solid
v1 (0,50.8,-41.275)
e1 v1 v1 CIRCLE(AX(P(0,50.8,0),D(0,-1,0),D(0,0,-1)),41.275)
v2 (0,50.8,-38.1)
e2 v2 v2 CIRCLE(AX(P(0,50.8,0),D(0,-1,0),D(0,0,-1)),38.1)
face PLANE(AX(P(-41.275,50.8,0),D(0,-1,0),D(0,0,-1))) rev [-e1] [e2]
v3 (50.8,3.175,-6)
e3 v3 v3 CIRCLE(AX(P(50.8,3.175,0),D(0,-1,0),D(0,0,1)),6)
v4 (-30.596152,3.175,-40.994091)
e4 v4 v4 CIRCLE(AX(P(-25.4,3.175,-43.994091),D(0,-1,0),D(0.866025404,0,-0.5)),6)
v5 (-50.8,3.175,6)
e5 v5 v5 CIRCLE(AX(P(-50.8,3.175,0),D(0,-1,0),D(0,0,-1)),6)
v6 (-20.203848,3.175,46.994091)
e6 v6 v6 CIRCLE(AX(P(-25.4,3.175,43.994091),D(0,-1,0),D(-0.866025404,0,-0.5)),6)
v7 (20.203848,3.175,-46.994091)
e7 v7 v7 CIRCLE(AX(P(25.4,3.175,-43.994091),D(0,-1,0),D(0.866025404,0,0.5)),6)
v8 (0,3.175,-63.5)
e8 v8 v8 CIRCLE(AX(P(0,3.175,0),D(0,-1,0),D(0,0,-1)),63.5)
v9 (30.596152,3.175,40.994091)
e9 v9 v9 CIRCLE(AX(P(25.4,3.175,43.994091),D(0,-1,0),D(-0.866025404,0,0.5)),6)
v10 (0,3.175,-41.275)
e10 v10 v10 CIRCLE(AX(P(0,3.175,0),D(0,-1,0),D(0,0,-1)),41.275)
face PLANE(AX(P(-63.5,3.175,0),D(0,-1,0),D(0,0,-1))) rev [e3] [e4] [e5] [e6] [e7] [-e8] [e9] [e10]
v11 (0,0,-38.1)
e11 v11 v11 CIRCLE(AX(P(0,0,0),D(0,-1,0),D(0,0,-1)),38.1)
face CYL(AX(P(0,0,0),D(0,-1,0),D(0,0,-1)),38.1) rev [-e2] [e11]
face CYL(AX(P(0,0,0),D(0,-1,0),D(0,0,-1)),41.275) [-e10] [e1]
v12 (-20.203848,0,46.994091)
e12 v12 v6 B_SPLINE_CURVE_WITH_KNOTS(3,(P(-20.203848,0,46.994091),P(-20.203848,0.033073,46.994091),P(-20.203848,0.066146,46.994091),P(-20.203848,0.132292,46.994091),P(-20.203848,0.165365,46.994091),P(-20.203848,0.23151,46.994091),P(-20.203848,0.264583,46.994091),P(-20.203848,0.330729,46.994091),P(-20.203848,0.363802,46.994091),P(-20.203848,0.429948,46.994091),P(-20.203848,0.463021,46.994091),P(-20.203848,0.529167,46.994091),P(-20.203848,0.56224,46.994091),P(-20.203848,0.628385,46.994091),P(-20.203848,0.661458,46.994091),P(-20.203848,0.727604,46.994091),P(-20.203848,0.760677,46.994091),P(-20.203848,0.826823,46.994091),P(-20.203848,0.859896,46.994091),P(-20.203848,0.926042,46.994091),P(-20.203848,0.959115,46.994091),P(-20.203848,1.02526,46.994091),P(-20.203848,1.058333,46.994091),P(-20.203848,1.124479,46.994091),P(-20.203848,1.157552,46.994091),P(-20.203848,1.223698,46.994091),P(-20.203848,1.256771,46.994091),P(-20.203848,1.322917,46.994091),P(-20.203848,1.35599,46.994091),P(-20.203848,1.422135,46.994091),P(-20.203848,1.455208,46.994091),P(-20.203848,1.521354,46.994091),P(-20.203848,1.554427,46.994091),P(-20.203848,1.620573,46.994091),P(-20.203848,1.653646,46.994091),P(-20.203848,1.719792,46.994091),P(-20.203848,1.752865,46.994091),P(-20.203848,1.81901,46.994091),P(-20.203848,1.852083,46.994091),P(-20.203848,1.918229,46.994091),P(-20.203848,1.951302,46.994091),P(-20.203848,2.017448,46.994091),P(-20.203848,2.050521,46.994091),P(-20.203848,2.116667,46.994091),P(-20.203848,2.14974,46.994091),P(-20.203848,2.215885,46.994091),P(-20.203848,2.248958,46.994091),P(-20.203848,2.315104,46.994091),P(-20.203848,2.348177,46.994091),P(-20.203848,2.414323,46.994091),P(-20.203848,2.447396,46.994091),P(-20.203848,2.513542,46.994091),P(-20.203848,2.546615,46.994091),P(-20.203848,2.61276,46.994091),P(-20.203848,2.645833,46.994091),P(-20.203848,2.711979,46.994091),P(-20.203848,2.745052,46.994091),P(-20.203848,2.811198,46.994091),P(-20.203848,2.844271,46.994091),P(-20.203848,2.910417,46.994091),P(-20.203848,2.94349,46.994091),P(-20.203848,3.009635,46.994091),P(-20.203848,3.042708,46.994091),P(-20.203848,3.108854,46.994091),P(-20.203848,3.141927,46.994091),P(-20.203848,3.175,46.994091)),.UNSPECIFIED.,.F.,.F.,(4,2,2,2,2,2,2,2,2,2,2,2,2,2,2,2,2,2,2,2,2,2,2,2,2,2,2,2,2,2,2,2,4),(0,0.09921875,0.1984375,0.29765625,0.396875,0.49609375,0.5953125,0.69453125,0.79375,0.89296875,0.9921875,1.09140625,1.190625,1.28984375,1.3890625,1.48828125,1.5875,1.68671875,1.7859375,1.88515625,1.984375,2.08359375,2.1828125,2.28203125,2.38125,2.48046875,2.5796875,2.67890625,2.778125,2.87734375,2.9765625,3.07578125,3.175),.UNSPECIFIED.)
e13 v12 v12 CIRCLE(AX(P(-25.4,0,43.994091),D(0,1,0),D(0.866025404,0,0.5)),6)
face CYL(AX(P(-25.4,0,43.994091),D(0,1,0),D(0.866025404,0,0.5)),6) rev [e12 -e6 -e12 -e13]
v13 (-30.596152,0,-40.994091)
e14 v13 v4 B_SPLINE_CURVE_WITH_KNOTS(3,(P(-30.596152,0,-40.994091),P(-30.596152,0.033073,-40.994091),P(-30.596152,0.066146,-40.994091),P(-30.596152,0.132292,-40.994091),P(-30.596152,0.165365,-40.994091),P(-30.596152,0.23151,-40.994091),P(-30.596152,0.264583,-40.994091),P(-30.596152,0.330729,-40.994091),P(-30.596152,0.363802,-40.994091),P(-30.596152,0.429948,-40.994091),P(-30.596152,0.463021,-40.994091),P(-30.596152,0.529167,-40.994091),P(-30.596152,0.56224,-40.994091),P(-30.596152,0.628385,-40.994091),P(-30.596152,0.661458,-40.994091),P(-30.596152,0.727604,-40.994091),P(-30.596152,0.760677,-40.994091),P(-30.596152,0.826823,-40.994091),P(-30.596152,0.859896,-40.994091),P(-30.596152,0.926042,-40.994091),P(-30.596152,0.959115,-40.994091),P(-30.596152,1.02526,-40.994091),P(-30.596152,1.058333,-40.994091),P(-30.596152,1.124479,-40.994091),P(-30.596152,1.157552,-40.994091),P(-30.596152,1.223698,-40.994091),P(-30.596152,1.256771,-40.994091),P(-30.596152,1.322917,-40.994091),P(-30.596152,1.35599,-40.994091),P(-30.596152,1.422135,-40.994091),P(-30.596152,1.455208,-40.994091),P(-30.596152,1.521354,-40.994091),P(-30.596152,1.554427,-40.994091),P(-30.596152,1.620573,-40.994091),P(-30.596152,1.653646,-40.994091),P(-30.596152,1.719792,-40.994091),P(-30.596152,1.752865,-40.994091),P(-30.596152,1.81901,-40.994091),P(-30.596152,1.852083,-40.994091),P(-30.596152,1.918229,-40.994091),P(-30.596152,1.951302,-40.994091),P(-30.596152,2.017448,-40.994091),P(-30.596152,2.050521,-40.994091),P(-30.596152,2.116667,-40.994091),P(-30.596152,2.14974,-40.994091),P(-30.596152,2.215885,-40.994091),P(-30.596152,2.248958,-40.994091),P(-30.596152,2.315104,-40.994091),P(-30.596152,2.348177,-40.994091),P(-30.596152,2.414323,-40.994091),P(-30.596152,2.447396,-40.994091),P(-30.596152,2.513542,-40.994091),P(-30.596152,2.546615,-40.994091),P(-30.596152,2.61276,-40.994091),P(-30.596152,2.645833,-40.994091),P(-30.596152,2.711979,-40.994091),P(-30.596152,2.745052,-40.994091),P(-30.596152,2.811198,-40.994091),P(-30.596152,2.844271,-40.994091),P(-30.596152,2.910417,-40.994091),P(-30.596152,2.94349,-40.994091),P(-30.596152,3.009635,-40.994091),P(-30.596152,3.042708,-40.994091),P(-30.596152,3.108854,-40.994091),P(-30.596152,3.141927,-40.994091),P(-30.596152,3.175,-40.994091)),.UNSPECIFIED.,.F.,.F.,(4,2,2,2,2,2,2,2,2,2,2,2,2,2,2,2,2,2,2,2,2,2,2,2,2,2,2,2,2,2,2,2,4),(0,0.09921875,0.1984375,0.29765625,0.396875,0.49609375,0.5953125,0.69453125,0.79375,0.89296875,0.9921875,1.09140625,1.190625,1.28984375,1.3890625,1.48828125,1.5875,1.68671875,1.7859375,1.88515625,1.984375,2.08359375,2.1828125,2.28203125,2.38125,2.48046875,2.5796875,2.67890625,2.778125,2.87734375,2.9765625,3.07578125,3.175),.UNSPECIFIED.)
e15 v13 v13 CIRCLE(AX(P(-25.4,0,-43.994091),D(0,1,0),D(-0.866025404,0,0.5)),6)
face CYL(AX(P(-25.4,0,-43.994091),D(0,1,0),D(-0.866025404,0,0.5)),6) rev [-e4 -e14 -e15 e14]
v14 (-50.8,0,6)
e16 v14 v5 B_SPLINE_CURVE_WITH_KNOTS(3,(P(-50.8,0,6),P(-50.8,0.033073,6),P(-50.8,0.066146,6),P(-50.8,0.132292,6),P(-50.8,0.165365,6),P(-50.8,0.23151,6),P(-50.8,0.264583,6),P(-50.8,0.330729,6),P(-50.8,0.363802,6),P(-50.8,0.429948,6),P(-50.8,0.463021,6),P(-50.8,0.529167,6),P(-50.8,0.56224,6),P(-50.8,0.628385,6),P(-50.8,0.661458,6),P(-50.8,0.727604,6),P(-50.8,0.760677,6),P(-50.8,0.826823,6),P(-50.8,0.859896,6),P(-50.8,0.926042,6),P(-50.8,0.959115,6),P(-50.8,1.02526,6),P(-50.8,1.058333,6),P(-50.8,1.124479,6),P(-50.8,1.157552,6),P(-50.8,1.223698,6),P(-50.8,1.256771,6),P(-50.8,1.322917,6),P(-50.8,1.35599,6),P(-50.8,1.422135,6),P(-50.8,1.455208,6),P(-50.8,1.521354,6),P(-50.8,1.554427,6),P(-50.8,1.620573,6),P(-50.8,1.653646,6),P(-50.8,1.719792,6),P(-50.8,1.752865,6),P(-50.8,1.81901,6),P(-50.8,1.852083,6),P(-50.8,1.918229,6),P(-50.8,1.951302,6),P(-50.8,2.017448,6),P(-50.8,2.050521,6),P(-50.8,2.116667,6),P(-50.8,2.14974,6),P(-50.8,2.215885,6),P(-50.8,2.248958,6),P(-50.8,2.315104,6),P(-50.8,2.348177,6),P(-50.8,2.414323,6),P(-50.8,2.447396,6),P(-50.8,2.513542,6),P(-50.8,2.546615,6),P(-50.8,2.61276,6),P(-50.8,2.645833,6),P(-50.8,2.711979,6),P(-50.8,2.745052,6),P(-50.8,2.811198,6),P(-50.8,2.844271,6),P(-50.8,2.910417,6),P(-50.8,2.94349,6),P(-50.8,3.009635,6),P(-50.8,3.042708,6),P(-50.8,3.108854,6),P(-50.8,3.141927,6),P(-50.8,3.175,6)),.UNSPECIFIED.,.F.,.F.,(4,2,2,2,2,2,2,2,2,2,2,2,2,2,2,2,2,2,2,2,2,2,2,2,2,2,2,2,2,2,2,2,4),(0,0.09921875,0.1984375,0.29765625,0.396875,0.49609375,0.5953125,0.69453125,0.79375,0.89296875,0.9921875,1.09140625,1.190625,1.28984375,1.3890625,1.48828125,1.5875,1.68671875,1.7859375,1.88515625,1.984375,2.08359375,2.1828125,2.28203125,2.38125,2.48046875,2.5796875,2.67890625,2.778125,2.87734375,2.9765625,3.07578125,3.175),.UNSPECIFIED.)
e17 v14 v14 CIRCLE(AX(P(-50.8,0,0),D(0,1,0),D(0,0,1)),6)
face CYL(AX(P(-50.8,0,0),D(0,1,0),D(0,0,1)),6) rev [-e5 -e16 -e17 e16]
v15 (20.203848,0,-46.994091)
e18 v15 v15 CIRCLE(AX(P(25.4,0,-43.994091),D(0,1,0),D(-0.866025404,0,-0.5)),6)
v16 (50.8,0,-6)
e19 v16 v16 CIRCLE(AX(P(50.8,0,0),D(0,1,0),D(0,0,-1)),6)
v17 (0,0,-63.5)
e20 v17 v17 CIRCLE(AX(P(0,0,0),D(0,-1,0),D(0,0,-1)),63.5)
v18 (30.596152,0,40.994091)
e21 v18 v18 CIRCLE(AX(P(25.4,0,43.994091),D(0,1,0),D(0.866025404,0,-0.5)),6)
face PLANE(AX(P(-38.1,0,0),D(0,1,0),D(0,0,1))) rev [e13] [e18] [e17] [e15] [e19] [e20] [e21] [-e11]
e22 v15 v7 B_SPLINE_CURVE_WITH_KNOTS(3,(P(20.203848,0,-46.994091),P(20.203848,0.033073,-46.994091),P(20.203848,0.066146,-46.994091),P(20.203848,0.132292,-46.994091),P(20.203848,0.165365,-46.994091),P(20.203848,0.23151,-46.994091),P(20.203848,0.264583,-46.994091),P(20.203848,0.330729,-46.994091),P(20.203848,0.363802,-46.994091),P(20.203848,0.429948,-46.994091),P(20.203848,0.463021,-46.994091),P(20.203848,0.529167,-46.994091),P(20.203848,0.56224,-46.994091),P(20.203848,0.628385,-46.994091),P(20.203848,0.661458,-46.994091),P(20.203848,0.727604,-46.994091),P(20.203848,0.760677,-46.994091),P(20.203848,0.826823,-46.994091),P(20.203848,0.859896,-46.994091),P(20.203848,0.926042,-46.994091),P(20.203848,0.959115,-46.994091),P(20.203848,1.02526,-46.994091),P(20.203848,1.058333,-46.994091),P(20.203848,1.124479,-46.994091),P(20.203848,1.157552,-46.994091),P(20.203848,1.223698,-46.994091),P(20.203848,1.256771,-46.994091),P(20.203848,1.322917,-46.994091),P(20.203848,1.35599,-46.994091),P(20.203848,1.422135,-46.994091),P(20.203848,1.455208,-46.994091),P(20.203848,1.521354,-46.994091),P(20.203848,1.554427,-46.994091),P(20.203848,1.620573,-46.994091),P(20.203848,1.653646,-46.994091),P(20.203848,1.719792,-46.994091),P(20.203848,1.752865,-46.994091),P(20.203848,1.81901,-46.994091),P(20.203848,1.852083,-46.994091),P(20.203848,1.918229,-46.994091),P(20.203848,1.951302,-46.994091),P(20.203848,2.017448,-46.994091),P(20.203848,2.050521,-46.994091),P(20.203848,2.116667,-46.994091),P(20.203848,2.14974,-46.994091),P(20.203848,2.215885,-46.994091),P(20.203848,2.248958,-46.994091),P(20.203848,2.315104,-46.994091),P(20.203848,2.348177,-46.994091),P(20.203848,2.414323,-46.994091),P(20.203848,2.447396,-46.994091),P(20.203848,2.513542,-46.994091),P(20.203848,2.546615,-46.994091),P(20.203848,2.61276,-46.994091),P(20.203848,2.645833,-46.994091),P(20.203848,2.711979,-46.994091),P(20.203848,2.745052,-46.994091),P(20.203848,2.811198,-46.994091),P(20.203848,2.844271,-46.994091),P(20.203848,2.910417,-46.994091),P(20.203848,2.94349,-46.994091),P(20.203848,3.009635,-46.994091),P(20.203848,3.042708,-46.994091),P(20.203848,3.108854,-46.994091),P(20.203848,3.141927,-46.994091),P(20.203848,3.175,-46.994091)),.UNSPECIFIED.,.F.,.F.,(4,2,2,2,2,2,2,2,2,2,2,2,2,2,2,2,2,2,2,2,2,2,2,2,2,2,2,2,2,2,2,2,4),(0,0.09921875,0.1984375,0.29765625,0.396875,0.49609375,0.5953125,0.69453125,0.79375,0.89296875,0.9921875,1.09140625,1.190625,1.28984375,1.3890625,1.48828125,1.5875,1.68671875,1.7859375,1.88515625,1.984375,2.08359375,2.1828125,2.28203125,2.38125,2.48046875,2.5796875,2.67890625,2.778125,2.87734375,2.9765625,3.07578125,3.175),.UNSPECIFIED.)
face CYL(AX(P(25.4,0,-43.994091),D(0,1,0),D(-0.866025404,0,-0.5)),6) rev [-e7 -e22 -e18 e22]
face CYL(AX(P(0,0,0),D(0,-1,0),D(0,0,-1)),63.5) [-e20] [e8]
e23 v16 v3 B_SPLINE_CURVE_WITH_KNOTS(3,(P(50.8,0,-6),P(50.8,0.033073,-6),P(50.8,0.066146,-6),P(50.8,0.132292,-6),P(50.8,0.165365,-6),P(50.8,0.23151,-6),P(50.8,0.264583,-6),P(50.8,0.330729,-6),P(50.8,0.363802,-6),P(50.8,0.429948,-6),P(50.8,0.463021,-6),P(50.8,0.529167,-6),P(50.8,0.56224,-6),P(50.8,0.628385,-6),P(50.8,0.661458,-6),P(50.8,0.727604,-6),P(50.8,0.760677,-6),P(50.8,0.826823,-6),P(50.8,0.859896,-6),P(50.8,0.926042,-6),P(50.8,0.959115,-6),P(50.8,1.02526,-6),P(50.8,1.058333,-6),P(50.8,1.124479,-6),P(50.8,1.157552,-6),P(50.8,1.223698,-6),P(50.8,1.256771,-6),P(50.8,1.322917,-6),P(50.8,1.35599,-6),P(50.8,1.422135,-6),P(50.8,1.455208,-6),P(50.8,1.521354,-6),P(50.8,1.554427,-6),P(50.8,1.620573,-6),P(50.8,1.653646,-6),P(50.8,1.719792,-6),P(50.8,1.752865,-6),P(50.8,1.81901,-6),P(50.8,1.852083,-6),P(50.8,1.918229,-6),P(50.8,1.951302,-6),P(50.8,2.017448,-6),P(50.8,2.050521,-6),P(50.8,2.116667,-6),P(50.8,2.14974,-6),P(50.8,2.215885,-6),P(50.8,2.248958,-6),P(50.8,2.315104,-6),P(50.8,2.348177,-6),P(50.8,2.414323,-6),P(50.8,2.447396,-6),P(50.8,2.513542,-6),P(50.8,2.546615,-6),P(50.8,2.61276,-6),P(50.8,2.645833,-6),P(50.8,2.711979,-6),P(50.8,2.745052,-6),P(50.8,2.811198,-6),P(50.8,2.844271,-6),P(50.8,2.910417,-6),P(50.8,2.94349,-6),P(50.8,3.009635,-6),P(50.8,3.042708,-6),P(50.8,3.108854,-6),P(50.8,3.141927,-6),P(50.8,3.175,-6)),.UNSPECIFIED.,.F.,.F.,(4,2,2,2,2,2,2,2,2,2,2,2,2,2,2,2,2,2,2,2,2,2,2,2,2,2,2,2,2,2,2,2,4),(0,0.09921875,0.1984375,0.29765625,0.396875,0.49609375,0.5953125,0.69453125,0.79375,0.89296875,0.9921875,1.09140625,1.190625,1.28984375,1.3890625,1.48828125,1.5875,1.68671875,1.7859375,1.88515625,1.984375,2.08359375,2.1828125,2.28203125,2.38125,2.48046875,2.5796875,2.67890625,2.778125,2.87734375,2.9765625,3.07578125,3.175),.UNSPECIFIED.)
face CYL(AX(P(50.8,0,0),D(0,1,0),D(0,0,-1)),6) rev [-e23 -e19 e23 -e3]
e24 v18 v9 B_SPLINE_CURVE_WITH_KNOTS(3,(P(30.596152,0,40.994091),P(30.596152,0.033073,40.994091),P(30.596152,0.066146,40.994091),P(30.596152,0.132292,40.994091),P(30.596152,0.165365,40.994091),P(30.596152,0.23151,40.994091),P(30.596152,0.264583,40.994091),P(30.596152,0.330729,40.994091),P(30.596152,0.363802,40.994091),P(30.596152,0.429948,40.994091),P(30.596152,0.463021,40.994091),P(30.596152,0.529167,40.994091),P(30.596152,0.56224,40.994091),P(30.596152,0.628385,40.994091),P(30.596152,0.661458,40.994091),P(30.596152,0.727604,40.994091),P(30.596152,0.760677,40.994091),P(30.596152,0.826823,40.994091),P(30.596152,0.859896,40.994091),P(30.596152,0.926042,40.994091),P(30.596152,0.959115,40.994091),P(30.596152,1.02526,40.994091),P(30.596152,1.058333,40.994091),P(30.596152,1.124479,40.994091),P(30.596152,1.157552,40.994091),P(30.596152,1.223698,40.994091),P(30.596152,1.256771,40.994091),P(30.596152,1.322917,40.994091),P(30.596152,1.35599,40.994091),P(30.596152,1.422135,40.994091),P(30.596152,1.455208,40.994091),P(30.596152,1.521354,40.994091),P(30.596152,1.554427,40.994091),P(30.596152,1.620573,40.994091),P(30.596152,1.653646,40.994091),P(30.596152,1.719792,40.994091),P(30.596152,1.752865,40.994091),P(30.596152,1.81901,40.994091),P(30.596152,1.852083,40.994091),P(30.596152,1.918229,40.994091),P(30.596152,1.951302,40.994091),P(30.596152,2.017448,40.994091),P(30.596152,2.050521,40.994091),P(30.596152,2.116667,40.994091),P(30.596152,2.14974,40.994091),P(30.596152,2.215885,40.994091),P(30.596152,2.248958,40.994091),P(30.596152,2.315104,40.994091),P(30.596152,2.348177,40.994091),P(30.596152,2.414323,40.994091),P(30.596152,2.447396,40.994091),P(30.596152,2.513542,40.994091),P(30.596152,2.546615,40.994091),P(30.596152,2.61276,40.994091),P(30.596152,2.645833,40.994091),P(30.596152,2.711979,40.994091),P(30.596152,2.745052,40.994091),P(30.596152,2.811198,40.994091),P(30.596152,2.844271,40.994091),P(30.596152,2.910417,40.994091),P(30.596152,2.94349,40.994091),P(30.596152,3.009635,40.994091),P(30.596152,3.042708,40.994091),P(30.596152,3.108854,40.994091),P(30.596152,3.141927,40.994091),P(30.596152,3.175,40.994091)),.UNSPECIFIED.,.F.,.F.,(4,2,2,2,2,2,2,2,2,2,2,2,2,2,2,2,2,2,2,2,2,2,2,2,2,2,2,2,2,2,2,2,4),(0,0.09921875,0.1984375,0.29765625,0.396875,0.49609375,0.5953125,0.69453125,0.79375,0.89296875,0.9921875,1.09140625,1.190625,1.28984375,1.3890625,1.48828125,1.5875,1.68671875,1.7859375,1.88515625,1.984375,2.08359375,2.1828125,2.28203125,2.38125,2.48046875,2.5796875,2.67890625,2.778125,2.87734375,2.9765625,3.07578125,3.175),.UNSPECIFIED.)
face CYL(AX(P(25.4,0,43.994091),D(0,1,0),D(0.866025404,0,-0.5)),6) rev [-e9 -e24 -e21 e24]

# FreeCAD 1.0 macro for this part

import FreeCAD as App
import Part
import Sketcher

V = App.Vector
Q = App.Units.Quantity


def add_polygon(sketch, points):
    """Adds a closed chain of lines whose ends are joined by coincident constraints."""
    first, n = sketch.GeometryCount, len(points)
    for a, b in zip(points, points[1:] + points[:1]):
        sketch.addGeometry(Part.LineSegment(App.Vector(*a, 0), App.Vector(*b, 0)), False)
    for i in range(n):
        sketch.addConstraint(Sketcher.Constraint("Coincident", first + i, 2, first + (i + 1) % n, 1))

doc = App.newDocument("Part")
body = doc.addObject("PartDesign::Body", "Body")

# Sketch on XY plane
sketch1 = body.newObject("Sketcher::SketchObject", "Sketch")
sketch1.AttachmentSupport = (doc.getObject("XY_Plane"), [""])
sketch1.MapMode = "FlatFace"
add_polygon(sketch1, [(-63.5, 3.2), (-63.5, 0), (-38.1, 0), (-38.1, 50.8), (-41.3, 50.8), (-41.3, 3.2)])  # lines 0-5
sketch1.addConstraint([
    Sketcher.Constraint("Vertical", 0),
    Sketcher.Constraint("Horizontal", 1),
    Sketcher.Constraint("Vertical", 2),
    Sketcher.Constraint("Horizontal", 3),
    Sketcher.Constraint("Vertical", 4),
    Sketcher.Constraint("Horizontal", 5),
    Sketcher.Constraint("PointOnObject", 0, 2, -1),
    Sketcher.Constraint("Equal", 3, 0),
    Sketcher.Constraint("DistanceX", 1, 1, 1, 2, Q("1 in")),
    Sketcher.Constraint("DistanceY", 2, 1, 2, 2, Q("2 in")),
    Sketcher.Constraint("DistanceX", 0, 2, -1, 1, Q("2.5 in")),
    Sketcher.Constraint("DistanceX", 3, 2, 3, 1, Q("0.125 in")),
])
revolution = body.newObject("PartDesign::Revolution", "Revolution")
revolution.Profile = sketch1
revolution.ReferenceAxis = (sketch1, ["V_Axis"])
revolution.Angle = 360

# Sketch on XZ plane
sketch2 = body.newObject("Sketcher::SketchObject", "Sketch001")
sketch2.AttachmentSupport = (doc.getObject("XZ_Plane"), [""])
sketch2.MapMode = "FlatFace"
sketch2.AttachmentOffset = App.Placement(V(0, 0, -0.125 * 25.4), App.Rotation())
sketch2.addGeometry(Part.Circle(V(-51, 0, 0), V(0, 0, 1), 6), False)
sketch2.addConstraint([
    Sketcher.Constraint("PointOnObject", 0, 3, -1),
    Sketcher.Constraint("DistanceX", 0, 3, -1, 1, Q("2 in")),
    Sketcher.Constraint("Diameter", 0, Q("12 mm")),
])
pocket1 = body.newObject("PartDesign::Pocket", "Pocket")
pocket1.Profile = sketch2
pocket1.Length = 205.299195
pocket1.Midplane = True
doc.recompute()

polarpattern = body.newObject("PartDesign::PolarPattern", "PolarPattern")
polarpattern.Originals = [pocket1]
polarpattern.Axis = (doc.getObject("Y_Axis"), [""])
polarpattern.Angle = 360
polarpattern.Occurrences = 6
body.Tip = polarpattern

doc.recompute()
